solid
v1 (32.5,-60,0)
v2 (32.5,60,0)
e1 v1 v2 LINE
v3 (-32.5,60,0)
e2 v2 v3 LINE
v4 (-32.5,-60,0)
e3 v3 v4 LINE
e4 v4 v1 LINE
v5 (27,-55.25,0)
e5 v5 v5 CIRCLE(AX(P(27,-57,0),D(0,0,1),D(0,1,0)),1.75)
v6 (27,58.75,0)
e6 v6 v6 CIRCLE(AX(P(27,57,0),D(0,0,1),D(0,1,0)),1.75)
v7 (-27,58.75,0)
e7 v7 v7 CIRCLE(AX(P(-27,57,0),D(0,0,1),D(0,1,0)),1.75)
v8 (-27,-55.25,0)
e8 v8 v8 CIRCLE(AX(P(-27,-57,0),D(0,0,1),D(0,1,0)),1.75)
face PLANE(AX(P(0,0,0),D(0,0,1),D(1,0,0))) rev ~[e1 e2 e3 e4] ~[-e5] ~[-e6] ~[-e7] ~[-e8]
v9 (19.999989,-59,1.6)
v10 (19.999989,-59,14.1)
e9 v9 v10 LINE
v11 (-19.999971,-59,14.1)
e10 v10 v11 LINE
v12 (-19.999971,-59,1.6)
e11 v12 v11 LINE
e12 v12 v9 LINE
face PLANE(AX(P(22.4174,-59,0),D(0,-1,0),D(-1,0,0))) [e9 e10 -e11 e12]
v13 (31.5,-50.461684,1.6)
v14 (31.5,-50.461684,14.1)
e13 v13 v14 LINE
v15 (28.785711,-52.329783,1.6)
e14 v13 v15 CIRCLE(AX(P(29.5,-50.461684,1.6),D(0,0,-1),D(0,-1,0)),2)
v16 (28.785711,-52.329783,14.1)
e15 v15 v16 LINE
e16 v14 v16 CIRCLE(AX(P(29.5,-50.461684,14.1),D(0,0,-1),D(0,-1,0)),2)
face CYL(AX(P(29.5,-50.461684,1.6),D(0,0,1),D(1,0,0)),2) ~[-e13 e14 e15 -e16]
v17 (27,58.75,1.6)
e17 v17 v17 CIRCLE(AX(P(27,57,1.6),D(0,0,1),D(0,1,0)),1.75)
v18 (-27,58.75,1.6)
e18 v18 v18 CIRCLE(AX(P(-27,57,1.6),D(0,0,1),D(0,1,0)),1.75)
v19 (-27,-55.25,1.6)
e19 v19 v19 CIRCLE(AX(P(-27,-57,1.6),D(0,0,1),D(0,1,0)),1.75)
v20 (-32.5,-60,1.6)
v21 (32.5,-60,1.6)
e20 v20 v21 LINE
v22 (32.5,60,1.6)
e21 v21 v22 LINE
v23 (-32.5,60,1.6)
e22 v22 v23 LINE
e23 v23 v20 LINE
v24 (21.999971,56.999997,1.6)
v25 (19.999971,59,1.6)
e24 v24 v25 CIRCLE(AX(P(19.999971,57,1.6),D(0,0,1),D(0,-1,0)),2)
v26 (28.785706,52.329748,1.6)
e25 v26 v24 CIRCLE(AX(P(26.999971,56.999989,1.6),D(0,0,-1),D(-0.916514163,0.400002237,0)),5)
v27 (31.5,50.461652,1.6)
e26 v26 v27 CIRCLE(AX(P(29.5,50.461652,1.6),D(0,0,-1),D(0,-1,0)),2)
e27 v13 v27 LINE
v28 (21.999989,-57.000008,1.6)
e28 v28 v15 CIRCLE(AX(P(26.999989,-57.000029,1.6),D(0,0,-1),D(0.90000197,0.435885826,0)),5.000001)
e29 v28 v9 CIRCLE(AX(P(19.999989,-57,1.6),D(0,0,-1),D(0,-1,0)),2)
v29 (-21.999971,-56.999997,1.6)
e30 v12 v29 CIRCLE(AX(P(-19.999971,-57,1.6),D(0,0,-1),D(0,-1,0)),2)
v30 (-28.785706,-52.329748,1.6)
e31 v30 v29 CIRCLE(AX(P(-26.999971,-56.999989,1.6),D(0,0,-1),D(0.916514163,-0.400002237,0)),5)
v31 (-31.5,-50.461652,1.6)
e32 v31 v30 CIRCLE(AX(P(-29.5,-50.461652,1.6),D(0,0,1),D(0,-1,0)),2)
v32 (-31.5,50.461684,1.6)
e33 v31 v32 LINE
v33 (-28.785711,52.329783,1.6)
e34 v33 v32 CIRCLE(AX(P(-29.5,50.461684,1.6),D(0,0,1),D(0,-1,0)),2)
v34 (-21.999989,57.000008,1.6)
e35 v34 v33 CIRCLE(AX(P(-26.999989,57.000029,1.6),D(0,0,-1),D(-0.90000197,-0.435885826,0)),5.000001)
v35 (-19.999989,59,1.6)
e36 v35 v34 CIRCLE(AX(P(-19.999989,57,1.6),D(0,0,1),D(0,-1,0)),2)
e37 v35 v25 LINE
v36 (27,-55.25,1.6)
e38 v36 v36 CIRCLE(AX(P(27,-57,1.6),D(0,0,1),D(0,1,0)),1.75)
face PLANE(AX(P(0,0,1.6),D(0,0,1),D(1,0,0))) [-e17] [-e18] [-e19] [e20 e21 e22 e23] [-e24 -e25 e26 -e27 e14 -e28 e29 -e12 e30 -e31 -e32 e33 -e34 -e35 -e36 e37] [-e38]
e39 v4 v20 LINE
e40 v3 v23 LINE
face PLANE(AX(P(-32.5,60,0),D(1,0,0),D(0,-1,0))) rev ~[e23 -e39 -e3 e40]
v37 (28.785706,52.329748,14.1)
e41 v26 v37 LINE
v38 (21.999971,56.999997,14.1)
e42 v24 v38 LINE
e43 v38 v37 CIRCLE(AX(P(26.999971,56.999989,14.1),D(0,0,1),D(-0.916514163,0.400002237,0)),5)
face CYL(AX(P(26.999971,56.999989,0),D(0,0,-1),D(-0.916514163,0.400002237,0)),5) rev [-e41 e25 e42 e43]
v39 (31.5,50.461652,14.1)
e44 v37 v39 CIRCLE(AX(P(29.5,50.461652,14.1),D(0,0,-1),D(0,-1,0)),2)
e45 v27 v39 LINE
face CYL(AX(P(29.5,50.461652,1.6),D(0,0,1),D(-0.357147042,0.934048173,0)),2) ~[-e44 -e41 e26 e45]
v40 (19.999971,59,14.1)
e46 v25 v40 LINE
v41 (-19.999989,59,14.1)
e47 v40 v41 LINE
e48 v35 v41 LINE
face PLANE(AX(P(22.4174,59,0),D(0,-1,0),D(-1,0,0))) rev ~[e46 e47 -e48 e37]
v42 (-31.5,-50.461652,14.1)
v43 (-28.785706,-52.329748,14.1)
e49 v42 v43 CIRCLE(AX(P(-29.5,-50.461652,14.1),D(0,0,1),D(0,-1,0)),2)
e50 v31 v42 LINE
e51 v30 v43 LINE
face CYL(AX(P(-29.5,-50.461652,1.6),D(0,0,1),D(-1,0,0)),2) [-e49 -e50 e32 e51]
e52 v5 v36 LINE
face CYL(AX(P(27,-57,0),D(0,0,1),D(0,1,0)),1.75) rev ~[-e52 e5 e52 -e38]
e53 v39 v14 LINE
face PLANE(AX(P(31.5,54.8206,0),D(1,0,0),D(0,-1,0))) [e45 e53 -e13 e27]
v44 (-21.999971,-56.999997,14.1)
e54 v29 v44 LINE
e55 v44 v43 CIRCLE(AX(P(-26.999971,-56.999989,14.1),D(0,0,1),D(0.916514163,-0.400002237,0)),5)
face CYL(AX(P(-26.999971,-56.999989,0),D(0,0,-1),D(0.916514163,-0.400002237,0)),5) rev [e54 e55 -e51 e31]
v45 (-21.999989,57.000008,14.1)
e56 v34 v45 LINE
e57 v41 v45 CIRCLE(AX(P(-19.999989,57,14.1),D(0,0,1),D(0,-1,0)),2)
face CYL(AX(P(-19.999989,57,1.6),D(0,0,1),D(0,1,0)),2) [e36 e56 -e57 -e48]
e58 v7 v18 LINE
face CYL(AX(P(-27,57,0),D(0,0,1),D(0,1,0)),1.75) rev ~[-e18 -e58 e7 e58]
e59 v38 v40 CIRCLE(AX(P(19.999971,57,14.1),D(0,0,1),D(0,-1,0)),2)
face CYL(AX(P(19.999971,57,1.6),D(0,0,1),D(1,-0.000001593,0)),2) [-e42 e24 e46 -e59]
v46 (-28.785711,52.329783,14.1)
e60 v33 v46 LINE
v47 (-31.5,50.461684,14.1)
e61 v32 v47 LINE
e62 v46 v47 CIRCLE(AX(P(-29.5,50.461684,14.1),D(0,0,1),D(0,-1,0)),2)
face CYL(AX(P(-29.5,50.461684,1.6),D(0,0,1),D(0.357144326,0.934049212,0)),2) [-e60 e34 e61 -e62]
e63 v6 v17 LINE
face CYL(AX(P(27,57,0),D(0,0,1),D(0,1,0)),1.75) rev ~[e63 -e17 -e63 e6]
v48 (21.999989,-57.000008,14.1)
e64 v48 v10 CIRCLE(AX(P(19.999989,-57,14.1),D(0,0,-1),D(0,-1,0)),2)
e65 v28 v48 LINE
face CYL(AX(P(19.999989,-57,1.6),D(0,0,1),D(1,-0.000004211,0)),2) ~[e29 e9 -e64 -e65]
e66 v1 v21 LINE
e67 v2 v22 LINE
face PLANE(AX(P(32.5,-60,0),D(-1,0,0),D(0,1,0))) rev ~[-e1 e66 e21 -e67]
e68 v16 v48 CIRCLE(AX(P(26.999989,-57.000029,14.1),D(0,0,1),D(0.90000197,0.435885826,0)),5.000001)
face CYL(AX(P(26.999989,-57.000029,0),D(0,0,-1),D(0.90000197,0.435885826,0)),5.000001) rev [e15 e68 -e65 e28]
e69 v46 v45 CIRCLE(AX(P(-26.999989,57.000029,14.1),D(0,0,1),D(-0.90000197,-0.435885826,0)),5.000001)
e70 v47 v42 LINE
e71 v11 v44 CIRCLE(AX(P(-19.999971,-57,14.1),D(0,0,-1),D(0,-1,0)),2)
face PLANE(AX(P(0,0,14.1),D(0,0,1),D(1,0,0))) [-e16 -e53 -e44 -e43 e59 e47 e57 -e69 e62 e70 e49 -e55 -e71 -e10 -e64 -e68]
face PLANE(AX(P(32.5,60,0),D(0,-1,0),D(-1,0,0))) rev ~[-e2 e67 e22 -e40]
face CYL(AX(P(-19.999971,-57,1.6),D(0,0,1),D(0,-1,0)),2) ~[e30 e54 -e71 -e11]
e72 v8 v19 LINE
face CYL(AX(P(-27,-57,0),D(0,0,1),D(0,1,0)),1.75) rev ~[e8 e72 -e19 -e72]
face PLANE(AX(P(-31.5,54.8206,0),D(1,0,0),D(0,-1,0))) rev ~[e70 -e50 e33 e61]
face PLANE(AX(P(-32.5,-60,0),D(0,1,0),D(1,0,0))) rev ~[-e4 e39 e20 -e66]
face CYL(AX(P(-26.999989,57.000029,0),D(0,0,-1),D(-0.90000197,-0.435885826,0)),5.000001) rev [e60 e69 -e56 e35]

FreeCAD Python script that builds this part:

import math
import FreeCAD as App
import Part
import Sketcher

V = App.Vector


def edges_at(feature, points):
    """Names of the edges that pass closest to the given points."""
    edges = feature.Shape.Edges
    near = lambda p: min(range(len(edges)), key=lambda i: edges[i].distToShape(Part.Vertex(*p))[0])
    return sorted({f"Edge{near(p) + 1}" for p in points})

doc = App.newDocument("Part")
params = doc.addObject("Spreadsheet::Sheet", "Params")
for row, (alias, value) in enumerate([
    ("sketch1_width", "65 mm"),
    ("sketch1_height", "120 mm"),
    ("pad1_length", "1.6 mm"),
    ("sketch2_radius", "5 mm"),
    ("pad2_length", "14.1 mm"),
    ("sketch3_diameter", "3.5 mm"),
    ("hole_diameter", "3.5 mm"),
    ("fillet_radius", "2 mm"),
], start=1):
    params.set(f"A{row}", alias)
    params.set(f"B{row}", "=" + value)
    params.setAlias(f"B{row}", alias)

body = doc.addObject("PartDesign::Body", "Body")

sketch1 = body.newObject("Sketcher::SketchObject", "Sketch")
sketch1.AttachmentSupport = (doc.getObject("XY_Plane"), [""])
sketch1.MapMode = "FlatFace"
sketch1.addGeometry([
    Part.LineSegment(V(32, -60, 0), V(32, 60, 0)),
    Part.LineSegment(V(32, 60, 0), V(-32, 60, 0)),
    Part.LineSegment(V(-32, 60, 0), V(-32, -60, 0)),
    Part.LineSegment(V(-32, -60, 0), V(32, -60, 0)),
], False)
sketch1.addConstraint([
    Sketcher.Constraint("Coincident", 0, 2, 1, 1),
    Sketcher.Constraint("Coincident", 1, 2, 2, 1),
    Sketcher.Constraint("Coincident", 2, 2, 3, 1),
    Sketcher.Constraint("Coincident", 3, 2, 0, 1),
    Sketcher.Constraint("Vertical", 0),
    Sketcher.Constraint("Horizontal", 1),
    Sketcher.Constraint("Vertical", 2),
    Sketcher.Constraint("Horizontal", 3),
    Sketcher.Constraint("Symmetric", 0, 2, 2, 2, -1, 1),
    Sketcher.Constraint("DistanceX", 1, 2, 1, 1, 65.0),
    Sketcher.Constraint("DistanceY", 0, 1, 0, 2, 120.0),
])
sketch1.setExpression("Constraints[9]", "Params.sketch1_width")
sketch1.setExpression("Constraints[10]", "Params.sketch1_height")
pad1 = body.newObject("PartDesign::Pad", "Pad")
pad1.Profile = sketch1
pad1.setExpression("Length", "Params.pad1_length")

sketch2 = body.newObject("Sketcher::SketchObject", "Sketch001")
sketch2.AttachmentSupport = (doc.getObject("XY_Plane"), [""])
sketch2.MapMode = "FlatFace"
sketch2.addGeometry([
    Part.ArcOfCircle(Part.Circle(V(27, 57, 0), V(0, 0, 1), 5), math.radians(156), math.radians(334)),
    Part.LineSegment(V(22.4, 59, 0), V(-22.4, 59, 0)),
    Part.ArcOfCircle(Part.Circle(V(-27, 57, 0), V(0, 0, 1), 5), math.radians(-154), math.radians(24)),
    Part.LineSegment(V(-31.5, 54.8, 0), V(-31.5, -54.8, 0)),
    Part.ArcOfCircle(Part.Circle(V(-27, -57, 0), V(0, 0, 1), 5), math.radians(-24), math.radians(154)),
    Part.LineSegment(V(-22.4, -59, 0), V(22.4, -59, 0)),
    Part.ArcOfCircle(Part.Circle(V(27, -57, 0), V(0, 0, 1), 5), math.radians(26), math.radians(204)),
    Part.LineSegment(V(31.5, -54.8, 0), V(31.5, 54.8, 0)),
], False)
sketch2.addConstraint([
    Sketcher.Constraint("Coincident", 0, 1, 1, 1),
    Sketcher.Constraint("Coincident", 1, 2, 2, 2),
    Sketcher.Constraint("Coincident", 2, 1, 3, 1),
    Sketcher.Constraint("Coincident", 3, 2, 4, 2),
    Sketcher.Constraint("Coincident", 4, 1, 5, 1),
    Sketcher.Constraint("Coincident", 5, 2, 6, 2),
    Sketcher.Constraint("Coincident", 6, 1, 7, 1),
    Sketcher.Constraint("Coincident", 7, 2, 0, 2),
    Sketcher.Constraint("Horizontal", 1),
    Sketcher.Constraint("Vertical", 3),
    Sketcher.Constraint("Horizontal", 5),
    Sketcher.Constraint("Vertical", 7),
    Sketcher.Constraint("Equal", 0, 2),
    Sketcher.Constraint("Equal", 2, 4),
    Sketcher.Constraint("Equal", 4, 6),
    Sketcher.Constraint("Symmetric", 0, 3, 4, 3, -1, 1),
    Sketcher.Constraint("Symmetric", 2, 3, 6, 3, -1, 1),
    Sketcher.Constraint("Symmetric", 0, 3, 2, 3, -2),
    Sketcher.Constraint("Horizontal", 3, 2, 6, 1),
    Sketcher.Constraint("Vertical", 1, 2, 4, 1),
    Sketcher.Constraint("Radius", 0, 5.0),
    Sketcher.Constraint("DistanceX", -1, 1, 0, 3, 27.0),
    Sketcher.Constraint("DistanceY", -1, 1, 0, 3, 57.0),
    Sketcher.Constraint("DistanceY", -1, 1, 0, 1, 59.0),
    Sketcher.Constraint("DistanceX", 3, 2, 6, 1, 63.0),
])
sketch2.setExpression("Constraints[20]", "Params.sketch2_radius")
pad2 = body.newObject("PartDesign::Pad", "Pad001")
pad2.Profile = sketch2
pad2.setExpression("Length", "Params.pad2_length")

sketch3 = body.newObject("Sketcher::SketchObject", "Sketch002")
sketch3.AttachmentSupport = (doc.getObject("XY_Plane"), [""])
sketch3.MapMode = "FlatFace"
sketch3.addGeometry([
    Part.Circle(V(27, 57, 0), V(0, 0, 1), 1.8),
    Part.Circle(V(-27, 57, 0), V(0, 0, 1), 1.8),
    Part.Circle(V(-27, -57, 0), V(0, 0, 1), 1.8),
    Part.Circle(V(27, -57, 0), V(0, 0, 1), 1.8),
], False)
sketch3.addConstraint([
    Sketcher.Constraint("Equal", 0, 1),
    Sketcher.Constraint("Equal", 1, 2),
    Sketcher.Constraint("Equal", 2, 3),
    Sketcher.Constraint("Symmetric", 0, 3, 2, 3, -1, 1),
    Sketcher.Constraint("Symmetric", 1, 3, 3, 3, -1, 1),
    Sketcher.Constraint("Symmetric", 0, 3, 1, 3, -2),
    Sketcher.Constraint("Diameter", 0, 3.5),
    Sketcher.Constraint("DistanceX", -1, 1, 0, 3, 27.0),
    Sketcher.Constraint("DistanceY", -1, 1, 0, 3, 57.0),
])
sketch3.setExpression("Constraints[6]", "Params.sketch3_diameter")
doc.recompute()
hole = body.newObject("PartDesign::Hole", "Hole")
hole.Profile = sketch3
hole.ThreadType = "None"
hole.setExpression("Diameter", "Params.hole_diameter")
hole.DepthType = "ThroughAll"
hole.Reversed = True
doc.recompute()

fillet = body.newObject("PartDesign::Fillet", "Fillet")
fillet.Base = (hole, edges_at(hole, [
    (-22.417, 59, 7.85),
    (-31.5, 54.821, 7.85),
    (22.417, 59, 7.85),
    (31.5, 54.821, 7.85),
    (31.5, -54.821, 7.85),
    (22.417, -59, 7.85),
    (-22.417, -59, 7.85),
    (-31.5, -54.821, 7.85),
]))
fillet.setExpression("Radius", "Params.fillet_radius")

doc.recompute()
